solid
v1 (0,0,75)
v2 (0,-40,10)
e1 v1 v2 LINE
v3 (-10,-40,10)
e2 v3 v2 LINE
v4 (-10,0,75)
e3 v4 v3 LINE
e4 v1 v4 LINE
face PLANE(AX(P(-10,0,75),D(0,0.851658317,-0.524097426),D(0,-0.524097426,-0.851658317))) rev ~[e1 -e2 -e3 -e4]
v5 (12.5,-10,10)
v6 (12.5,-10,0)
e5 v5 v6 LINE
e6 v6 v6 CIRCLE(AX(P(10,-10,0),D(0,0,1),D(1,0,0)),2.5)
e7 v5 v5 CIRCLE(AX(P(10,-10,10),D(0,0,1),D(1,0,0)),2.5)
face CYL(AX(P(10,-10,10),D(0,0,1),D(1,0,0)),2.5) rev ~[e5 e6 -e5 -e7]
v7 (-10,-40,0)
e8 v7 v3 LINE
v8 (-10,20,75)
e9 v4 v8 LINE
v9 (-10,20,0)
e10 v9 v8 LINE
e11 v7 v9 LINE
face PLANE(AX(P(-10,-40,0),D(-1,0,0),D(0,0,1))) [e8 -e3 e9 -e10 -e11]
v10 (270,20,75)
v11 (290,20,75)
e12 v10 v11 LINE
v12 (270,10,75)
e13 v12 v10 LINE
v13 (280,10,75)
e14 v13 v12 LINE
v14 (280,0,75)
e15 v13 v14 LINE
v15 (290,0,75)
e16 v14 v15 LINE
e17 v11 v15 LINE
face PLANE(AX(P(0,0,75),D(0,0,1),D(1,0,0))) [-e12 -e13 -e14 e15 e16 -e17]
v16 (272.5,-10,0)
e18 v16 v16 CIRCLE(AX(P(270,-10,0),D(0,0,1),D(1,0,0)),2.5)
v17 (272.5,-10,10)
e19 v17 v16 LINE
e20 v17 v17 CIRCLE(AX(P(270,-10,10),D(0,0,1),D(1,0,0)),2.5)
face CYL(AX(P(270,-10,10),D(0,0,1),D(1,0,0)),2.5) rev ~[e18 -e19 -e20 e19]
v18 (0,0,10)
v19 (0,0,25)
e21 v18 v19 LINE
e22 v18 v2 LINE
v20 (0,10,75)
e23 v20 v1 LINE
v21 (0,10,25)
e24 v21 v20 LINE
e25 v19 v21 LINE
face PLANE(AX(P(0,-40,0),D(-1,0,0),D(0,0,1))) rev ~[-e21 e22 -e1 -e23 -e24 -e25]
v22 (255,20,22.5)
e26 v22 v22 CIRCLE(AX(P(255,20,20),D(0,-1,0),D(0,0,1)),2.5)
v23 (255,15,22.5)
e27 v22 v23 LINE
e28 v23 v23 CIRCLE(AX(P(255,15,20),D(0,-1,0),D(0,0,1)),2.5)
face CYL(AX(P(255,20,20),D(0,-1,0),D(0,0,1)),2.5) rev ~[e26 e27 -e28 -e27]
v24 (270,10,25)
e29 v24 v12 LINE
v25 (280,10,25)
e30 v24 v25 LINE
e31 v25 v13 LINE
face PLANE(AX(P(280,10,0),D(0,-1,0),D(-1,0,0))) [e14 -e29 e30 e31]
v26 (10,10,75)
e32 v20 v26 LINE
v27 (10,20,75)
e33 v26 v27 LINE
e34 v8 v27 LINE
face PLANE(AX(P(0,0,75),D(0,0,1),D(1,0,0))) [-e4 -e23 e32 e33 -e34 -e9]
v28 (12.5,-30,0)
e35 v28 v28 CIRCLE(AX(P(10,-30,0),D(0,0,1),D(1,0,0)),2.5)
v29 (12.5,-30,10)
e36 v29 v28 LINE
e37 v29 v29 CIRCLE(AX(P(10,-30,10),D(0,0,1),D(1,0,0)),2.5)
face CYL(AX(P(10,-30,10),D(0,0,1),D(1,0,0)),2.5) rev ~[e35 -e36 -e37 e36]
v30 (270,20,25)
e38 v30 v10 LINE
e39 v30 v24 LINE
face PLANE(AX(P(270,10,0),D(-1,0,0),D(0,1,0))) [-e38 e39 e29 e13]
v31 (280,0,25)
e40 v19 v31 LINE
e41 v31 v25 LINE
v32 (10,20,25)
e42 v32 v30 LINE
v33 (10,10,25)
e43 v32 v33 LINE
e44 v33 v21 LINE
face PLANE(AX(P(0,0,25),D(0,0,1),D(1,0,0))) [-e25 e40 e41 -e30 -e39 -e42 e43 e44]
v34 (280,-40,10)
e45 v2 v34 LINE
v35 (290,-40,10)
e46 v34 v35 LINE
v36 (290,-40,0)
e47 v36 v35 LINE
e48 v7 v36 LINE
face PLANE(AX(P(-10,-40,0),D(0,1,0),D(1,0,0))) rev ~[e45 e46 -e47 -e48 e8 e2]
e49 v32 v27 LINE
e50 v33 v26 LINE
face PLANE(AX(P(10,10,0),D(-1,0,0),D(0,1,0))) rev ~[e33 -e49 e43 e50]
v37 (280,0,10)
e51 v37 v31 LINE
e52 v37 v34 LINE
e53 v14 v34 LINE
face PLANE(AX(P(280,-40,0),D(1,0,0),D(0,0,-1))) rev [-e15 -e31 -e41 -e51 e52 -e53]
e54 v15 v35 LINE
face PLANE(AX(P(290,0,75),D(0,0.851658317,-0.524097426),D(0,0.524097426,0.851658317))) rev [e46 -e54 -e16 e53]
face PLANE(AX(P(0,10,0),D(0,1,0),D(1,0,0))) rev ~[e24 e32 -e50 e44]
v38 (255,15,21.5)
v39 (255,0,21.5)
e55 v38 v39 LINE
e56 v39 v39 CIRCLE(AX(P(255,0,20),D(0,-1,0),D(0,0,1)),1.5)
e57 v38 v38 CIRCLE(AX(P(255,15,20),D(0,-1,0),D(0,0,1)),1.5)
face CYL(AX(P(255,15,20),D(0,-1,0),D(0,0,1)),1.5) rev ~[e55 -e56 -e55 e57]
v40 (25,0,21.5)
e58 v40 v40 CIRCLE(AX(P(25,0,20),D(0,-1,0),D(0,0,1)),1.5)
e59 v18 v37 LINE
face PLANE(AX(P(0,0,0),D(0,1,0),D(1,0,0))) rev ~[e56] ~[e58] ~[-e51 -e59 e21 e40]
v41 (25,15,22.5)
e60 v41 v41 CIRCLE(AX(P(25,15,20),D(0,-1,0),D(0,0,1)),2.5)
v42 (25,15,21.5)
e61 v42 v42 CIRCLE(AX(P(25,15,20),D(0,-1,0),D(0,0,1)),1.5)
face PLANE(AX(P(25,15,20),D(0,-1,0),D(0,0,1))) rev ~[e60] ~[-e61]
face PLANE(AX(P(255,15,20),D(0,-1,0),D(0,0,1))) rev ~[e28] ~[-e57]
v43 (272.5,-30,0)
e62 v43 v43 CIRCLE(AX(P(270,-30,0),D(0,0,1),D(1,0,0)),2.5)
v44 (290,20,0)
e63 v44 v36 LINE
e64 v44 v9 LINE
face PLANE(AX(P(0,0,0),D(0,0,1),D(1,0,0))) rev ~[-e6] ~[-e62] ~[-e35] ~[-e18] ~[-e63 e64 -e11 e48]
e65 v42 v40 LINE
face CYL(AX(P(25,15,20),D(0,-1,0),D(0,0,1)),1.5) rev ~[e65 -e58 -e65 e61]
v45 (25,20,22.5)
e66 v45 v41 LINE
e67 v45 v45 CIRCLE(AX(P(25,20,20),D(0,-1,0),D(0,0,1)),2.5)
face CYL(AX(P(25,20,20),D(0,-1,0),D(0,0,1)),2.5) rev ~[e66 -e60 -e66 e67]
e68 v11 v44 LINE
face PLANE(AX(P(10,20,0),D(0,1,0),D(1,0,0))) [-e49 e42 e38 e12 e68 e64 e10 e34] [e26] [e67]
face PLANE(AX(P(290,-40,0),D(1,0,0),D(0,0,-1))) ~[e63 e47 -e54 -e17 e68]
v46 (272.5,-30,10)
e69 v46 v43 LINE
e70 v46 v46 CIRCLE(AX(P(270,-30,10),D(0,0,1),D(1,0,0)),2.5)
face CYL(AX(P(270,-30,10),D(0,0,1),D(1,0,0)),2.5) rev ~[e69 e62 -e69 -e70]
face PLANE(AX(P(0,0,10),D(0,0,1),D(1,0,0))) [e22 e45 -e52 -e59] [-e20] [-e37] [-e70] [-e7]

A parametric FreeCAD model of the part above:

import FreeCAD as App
import Part
import Sketcher
from FreeCAD import Vector
Q = App.Units.Quantity


def add_polygon(sketch, points):
    """Adds a closed chain of lines whose ends are joined by coincident constraints."""
    first, n = sketch.GeometryCount, len(points)
    for a, b in zip(points, points[1:] + points[:1]):
        sketch.addGeometry(Part.LineSegment(App.Vector(*a, 0), App.Vector(*b, 0)), False)
    for i in range(n):
        sketch.addConstraint(Sketcher.Constraint("Coincident", first + i, 2, first + (i + 1) % n, 1))

doc = App.newDocument("Part")
body = doc.addObject("PartDesign::Body", "Body")

sketch1 = body.newObject("Sketcher::SketchObject", "Sketch")
sketch1.AttachmentSupport = (doc.getObject("XY_Plane"), [""])
sketch1.MapMode = "FlatFace"
add_polygon(sketch1, [(-10, 20), (-10, 0), (290, 0), (290, 20)])
sketch1.addConstraint([
    Sketcher.Constraint("Vertical", 0),
    Sketcher.Constraint("Horizontal", 1),
    Sketcher.Constraint("Vertical", 2),
    Sketcher.Constraint("Horizontal", 3),
    Sketcher.Constraint("PointOnObject", 0, 2, -1),
    Sketcher.Constraint("DistanceX", 1, 1, 1, 2, Q("300 mm")),
    Sketcher.Constraint("DistanceX", 0, 2, -1, 1, Q("10 mm")),
    Sketcher.Constraint("DistanceY", 0, 2, 0, 1, Q("20 mm")),
])
pad1 = body.newObject("PartDesign::Pad", "Pad")
pad1.Profile = sketch1
pad1.Length = 25

sketch2 = body.newObject("Sketcher::SketchObject", "Sketch001")
sketch2.AttachmentSupport = (doc.getObject("XY_Plane"), [""])
sketch2.MapMode = "FlatFace"
add_polygon(sketch2, [(10, 10), (0, 10), (0, 0), (-10, 0), (-10, -40), (290, -40), (290, 0), (280, 0), (280, 10), (270, 10), (270, 20), (10, 20)])
sketch2.addConstraint([
    Sketcher.Constraint("Horizontal", 0),
    Sketcher.Constraint("Vertical", 1),
    Sketcher.Constraint("Horizontal", 2),
    Sketcher.Constraint("Vertical", 3),
    Sketcher.Constraint("Horizontal", 4),
    Sketcher.Constraint("Vertical", 5),
    Sketcher.Constraint("Horizontal", 6),
    Sketcher.Constraint("Vertical", 7),
    Sketcher.Constraint("Horizontal", 8),
    Sketcher.Constraint("Vertical", 9),
    Sketcher.Constraint("Horizontal", 10),
    Sketcher.Constraint("Vertical", 11),
    Sketcher.Constraint("Coincident", 1, 2, -1, 1),
    Sketcher.Constraint("PointOnObject", 5, 2, -1),
    Sketcher.Constraint("Horizontal", 0, 2, 7, 2),
    Sketcher.Constraint("Equal", 0, 2),
    Sketcher.Constraint("Equal", 2, 6),
    Sketcher.Constraint("Equal", 6, 8),
    Sketcher.Constraint("Equal", 8, 1),
    Sketcher.Constraint("Equal", 7, 9),
    Sketcher.Constraint("DistanceX", 0, 2, 0, 1, Q("10 mm")),
    Sketcher.Constraint("DistanceX", 4, 1, 4, 2, Q("300 mm")),
    Sketcher.Constraint("DistanceY", 4, 2, 9, 2, Q("60 mm")),
])
pad2 = body.newObject("PartDesign::Pad", "Pad001")
pad2.Profile = sketch2
pad2.Length = 10

sketch3 = body.newObject("Sketcher::SketchObject", "Sketch002")
sketch3.AttachmentSupport = (doc.getObject("XY_Plane"), [""])
sketch3.MapMode = "FlatFace"
add_polygon(sketch3, [(0, 0), (0, 10), (10, 10), (10, 20), (-10, 20), (-10, 0)])
add_polygon(sketch3, [(280, 10), (280, 0), (290, 0), (290, 20), (270, 20), (270, 10)])
sketch3.addConstraint([
    Sketcher.Constraint("Vertical", 0),
    Sketcher.Constraint("Horizontal", 1),
    Sketcher.Constraint("Vertical", 2),
    Sketcher.Constraint("Horizontal", 3),
    Sketcher.Constraint("Vertical", 4),
    Sketcher.Constraint("Horizontal", 5),
    Sketcher.Constraint("Vertical", 6),
    Sketcher.Constraint("Horizontal", 7),
    Sketcher.Constraint("Vertical", 8),
    Sketcher.Constraint("Horizontal", 9),
    Sketcher.Constraint("Vertical", 10),
    Sketcher.Constraint("Horizontal", 11),
    Sketcher.Constraint("Coincident", 5, 2, -1, 1),
    Sketcher.Constraint("PointOnObject", 6, 2, -1),
    Sketcher.Constraint("Horizontal", 3, 2, 8, 2),
    Sketcher.Constraint("Horizontal", 1, 2, 10, 2),
    Sketcher.Constraint("Equal", 1, 5),
    Sketcher.Constraint("Equal", 5, 7),
    Sketcher.Constraint("Equal", 3, 9),
    Sketcher.Constraint("Equal", 11, 0),
    Sketcher.Constraint("Equal", 0, 2),
    Sketcher.Constraint("DistanceX", 1, 1, 1, 2, Q("10 mm")),
    Sketcher.Constraint("DistanceX", -1, 1, 6, 2, Q("280 mm")),
])
pad3 = body.newObject("PartDesign::Pad", "Pad002")
pad3.Profile = sketch3
pad3.Length = 75

sketch4 = body.newObject("Sketcher::SketchObject", "Sketch003")
sketch4.AttachmentSupport = (doc.getObject("YZ_Plane"), [""])
sketch4.MapMode = "FlatFace"
sketch4.AttachmentOffset = App.Placement(Vector(0, 0, -10), App.Rotation())
add_polygon(sketch4, [(0, 10), (-40, 10), (0, 75)])
sketch4.addConstraint([
    Sketcher.Constraint("Horizontal", 0),
    Sketcher.Constraint("Vertical", 2),
    Sketcher.Constraint("PointOnObject", 1, 2, -2),
    Sketcher.Constraint("DistanceX", 0, 2, 0, 1, Q("40 mm")),
    Sketcher.Constraint("DistanceY", 2, 2, 2, 1, Q("65 mm")),
    Sketcher.Constraint("DistanceY", -1, 1, 0, 2, Q("10 mm")),
])
pad4 = body.newObject("PartDesign::Pad", "Pad003")
pad4.Profile = sketch4
pad4.Length = 10
doc.recompute()

datumplane = body.newObject("PartDesign::Plane", "DatumPlane")
datumplane.AttachmentSupport = (doc.getObject("YZ_Plane"), [""])
datumplane.MapMode = "FlatFace"
datumplane.AttachmentOffset = App.Placement(Vector(0, 0, 140), App.Rotation())
mirrored = body.newObject("PartDesign::Mirrored", "Mirrored")
mirrored.Originals = [pad4]
mirrored.MirrorPlane = (datumplane, [""])
body.Tip = mirrored

sketch5 = body.newObject("Sketcher::SketchObject", "Sketch004")
sketch5.AttachmentSupport = (doc.getObject("XY_Plane"), [""])
sketch5.MapMode = "FlatFace"
sketch5.AttachmentOffset = App.Placement(Vector(0, 0, 10), App.Rotation())
sketch5.addGeometry([
    Part.Circle(Vector(10, -10, 0), Vector(0, 0, 1), 2.5),
    Part.Circle(Vector(270, -10, 0), Vector(0, 0, 1), 2.5),
    Part.Circle(Vector(10, -30, 0), Vector(0, 0, 1), 2.5),
    Part.Circle(Vector(270, -30, 0), Vector(0, 0, 1), 2.5),
], False)
sketch5.addConstraint([
    Sketcher.Constraint("Equal", 0, 1),
    Sketcher.Constraint("Equal", 1, 2),
    Sketcher.Constraint("Equal", 2, 3),
    Sketcher.Constraint("Horizontal", 0, 3, 1, 3),
    Sketcher.Constraint("Horizontal", 2, 3, 3, 3),
    Sketcher.Constraint("Vertical", 0, 3, 2, 3),
    Sketcher.Constraint("Vertical", 1, 3, 3, 3),
    Sketcher.Constraint("Diameter", 0, Q("5 mm")),
    Sketcher.Constraint("DistanceY", 2, 3, -1, 1, Q("30 mm")),
    Sketcher.Constraint("DistanceY", 2, 3, 0, 3, Q("20 mm")),
    Sketcher.Constraint("DistanceX", -1, 1, 0, 3, Q("10 mm")),
    Sketcher.Constraint("DistanceX", -1, 1, 1, 3, Q("270 mm")),
])
pocket1 = body.newObject("PartDesign::Pocket", "Pocket")
pocket1.Profile = sketch5
pocket1.Type = "ThroughAll"

sketch6 = body.newObject("Sketcher::SketchObject", "Sketch005")
sketch6.AttachmentSupport = (doc.getObject("XZ_Plane"), [""])
sketch6.MapMode = "FlatFace"
sketch6.AttachmentOffset = App.Placement(Vector(0, 0, -20), App.Rotation())
sketch6.addGeometry([
    Part.Circle(Vector(25, 20, 0), Vector(0, 0, 1), 1.5),
    Part.Circle(Vector(255, 20, 0), Vector(0, 0, 1), 1.5),
], False)
sketch6.addConstraint([
    Sketcher.Constraint("Equal", 0, 1),
    Sketcher.Constraint("Horizontal", 0, 3, 1, 3),
    Sketcher.Constraint("Diameter", 0, Q("3 mm")),
    Sketcher.Constraint("DistanceX", -1, 1, 0, 3, Q("25 mm")),
    Sketcher.Constraint("DistanceY", -1, 1, 0, 3, Q("20 mm")),
    Sketcher.Constraint("DistanceX", -1, 1, 1, 3, Q("255 mm")),
])
doc.recompute()
hole = body.newObject("PartDesign::Hole", "Hole")
hole.Profile = sketch6
hole.ThreadType = "None"
hole.Diameter = 3
hole.DepthType = "ThroughAll"
hole.HoleCutType = "Counterbore"
hole.HoleCutDiameter = 5
hole.HoleCutDepth = 5
hole.Reversed = True

doc.recompute()
